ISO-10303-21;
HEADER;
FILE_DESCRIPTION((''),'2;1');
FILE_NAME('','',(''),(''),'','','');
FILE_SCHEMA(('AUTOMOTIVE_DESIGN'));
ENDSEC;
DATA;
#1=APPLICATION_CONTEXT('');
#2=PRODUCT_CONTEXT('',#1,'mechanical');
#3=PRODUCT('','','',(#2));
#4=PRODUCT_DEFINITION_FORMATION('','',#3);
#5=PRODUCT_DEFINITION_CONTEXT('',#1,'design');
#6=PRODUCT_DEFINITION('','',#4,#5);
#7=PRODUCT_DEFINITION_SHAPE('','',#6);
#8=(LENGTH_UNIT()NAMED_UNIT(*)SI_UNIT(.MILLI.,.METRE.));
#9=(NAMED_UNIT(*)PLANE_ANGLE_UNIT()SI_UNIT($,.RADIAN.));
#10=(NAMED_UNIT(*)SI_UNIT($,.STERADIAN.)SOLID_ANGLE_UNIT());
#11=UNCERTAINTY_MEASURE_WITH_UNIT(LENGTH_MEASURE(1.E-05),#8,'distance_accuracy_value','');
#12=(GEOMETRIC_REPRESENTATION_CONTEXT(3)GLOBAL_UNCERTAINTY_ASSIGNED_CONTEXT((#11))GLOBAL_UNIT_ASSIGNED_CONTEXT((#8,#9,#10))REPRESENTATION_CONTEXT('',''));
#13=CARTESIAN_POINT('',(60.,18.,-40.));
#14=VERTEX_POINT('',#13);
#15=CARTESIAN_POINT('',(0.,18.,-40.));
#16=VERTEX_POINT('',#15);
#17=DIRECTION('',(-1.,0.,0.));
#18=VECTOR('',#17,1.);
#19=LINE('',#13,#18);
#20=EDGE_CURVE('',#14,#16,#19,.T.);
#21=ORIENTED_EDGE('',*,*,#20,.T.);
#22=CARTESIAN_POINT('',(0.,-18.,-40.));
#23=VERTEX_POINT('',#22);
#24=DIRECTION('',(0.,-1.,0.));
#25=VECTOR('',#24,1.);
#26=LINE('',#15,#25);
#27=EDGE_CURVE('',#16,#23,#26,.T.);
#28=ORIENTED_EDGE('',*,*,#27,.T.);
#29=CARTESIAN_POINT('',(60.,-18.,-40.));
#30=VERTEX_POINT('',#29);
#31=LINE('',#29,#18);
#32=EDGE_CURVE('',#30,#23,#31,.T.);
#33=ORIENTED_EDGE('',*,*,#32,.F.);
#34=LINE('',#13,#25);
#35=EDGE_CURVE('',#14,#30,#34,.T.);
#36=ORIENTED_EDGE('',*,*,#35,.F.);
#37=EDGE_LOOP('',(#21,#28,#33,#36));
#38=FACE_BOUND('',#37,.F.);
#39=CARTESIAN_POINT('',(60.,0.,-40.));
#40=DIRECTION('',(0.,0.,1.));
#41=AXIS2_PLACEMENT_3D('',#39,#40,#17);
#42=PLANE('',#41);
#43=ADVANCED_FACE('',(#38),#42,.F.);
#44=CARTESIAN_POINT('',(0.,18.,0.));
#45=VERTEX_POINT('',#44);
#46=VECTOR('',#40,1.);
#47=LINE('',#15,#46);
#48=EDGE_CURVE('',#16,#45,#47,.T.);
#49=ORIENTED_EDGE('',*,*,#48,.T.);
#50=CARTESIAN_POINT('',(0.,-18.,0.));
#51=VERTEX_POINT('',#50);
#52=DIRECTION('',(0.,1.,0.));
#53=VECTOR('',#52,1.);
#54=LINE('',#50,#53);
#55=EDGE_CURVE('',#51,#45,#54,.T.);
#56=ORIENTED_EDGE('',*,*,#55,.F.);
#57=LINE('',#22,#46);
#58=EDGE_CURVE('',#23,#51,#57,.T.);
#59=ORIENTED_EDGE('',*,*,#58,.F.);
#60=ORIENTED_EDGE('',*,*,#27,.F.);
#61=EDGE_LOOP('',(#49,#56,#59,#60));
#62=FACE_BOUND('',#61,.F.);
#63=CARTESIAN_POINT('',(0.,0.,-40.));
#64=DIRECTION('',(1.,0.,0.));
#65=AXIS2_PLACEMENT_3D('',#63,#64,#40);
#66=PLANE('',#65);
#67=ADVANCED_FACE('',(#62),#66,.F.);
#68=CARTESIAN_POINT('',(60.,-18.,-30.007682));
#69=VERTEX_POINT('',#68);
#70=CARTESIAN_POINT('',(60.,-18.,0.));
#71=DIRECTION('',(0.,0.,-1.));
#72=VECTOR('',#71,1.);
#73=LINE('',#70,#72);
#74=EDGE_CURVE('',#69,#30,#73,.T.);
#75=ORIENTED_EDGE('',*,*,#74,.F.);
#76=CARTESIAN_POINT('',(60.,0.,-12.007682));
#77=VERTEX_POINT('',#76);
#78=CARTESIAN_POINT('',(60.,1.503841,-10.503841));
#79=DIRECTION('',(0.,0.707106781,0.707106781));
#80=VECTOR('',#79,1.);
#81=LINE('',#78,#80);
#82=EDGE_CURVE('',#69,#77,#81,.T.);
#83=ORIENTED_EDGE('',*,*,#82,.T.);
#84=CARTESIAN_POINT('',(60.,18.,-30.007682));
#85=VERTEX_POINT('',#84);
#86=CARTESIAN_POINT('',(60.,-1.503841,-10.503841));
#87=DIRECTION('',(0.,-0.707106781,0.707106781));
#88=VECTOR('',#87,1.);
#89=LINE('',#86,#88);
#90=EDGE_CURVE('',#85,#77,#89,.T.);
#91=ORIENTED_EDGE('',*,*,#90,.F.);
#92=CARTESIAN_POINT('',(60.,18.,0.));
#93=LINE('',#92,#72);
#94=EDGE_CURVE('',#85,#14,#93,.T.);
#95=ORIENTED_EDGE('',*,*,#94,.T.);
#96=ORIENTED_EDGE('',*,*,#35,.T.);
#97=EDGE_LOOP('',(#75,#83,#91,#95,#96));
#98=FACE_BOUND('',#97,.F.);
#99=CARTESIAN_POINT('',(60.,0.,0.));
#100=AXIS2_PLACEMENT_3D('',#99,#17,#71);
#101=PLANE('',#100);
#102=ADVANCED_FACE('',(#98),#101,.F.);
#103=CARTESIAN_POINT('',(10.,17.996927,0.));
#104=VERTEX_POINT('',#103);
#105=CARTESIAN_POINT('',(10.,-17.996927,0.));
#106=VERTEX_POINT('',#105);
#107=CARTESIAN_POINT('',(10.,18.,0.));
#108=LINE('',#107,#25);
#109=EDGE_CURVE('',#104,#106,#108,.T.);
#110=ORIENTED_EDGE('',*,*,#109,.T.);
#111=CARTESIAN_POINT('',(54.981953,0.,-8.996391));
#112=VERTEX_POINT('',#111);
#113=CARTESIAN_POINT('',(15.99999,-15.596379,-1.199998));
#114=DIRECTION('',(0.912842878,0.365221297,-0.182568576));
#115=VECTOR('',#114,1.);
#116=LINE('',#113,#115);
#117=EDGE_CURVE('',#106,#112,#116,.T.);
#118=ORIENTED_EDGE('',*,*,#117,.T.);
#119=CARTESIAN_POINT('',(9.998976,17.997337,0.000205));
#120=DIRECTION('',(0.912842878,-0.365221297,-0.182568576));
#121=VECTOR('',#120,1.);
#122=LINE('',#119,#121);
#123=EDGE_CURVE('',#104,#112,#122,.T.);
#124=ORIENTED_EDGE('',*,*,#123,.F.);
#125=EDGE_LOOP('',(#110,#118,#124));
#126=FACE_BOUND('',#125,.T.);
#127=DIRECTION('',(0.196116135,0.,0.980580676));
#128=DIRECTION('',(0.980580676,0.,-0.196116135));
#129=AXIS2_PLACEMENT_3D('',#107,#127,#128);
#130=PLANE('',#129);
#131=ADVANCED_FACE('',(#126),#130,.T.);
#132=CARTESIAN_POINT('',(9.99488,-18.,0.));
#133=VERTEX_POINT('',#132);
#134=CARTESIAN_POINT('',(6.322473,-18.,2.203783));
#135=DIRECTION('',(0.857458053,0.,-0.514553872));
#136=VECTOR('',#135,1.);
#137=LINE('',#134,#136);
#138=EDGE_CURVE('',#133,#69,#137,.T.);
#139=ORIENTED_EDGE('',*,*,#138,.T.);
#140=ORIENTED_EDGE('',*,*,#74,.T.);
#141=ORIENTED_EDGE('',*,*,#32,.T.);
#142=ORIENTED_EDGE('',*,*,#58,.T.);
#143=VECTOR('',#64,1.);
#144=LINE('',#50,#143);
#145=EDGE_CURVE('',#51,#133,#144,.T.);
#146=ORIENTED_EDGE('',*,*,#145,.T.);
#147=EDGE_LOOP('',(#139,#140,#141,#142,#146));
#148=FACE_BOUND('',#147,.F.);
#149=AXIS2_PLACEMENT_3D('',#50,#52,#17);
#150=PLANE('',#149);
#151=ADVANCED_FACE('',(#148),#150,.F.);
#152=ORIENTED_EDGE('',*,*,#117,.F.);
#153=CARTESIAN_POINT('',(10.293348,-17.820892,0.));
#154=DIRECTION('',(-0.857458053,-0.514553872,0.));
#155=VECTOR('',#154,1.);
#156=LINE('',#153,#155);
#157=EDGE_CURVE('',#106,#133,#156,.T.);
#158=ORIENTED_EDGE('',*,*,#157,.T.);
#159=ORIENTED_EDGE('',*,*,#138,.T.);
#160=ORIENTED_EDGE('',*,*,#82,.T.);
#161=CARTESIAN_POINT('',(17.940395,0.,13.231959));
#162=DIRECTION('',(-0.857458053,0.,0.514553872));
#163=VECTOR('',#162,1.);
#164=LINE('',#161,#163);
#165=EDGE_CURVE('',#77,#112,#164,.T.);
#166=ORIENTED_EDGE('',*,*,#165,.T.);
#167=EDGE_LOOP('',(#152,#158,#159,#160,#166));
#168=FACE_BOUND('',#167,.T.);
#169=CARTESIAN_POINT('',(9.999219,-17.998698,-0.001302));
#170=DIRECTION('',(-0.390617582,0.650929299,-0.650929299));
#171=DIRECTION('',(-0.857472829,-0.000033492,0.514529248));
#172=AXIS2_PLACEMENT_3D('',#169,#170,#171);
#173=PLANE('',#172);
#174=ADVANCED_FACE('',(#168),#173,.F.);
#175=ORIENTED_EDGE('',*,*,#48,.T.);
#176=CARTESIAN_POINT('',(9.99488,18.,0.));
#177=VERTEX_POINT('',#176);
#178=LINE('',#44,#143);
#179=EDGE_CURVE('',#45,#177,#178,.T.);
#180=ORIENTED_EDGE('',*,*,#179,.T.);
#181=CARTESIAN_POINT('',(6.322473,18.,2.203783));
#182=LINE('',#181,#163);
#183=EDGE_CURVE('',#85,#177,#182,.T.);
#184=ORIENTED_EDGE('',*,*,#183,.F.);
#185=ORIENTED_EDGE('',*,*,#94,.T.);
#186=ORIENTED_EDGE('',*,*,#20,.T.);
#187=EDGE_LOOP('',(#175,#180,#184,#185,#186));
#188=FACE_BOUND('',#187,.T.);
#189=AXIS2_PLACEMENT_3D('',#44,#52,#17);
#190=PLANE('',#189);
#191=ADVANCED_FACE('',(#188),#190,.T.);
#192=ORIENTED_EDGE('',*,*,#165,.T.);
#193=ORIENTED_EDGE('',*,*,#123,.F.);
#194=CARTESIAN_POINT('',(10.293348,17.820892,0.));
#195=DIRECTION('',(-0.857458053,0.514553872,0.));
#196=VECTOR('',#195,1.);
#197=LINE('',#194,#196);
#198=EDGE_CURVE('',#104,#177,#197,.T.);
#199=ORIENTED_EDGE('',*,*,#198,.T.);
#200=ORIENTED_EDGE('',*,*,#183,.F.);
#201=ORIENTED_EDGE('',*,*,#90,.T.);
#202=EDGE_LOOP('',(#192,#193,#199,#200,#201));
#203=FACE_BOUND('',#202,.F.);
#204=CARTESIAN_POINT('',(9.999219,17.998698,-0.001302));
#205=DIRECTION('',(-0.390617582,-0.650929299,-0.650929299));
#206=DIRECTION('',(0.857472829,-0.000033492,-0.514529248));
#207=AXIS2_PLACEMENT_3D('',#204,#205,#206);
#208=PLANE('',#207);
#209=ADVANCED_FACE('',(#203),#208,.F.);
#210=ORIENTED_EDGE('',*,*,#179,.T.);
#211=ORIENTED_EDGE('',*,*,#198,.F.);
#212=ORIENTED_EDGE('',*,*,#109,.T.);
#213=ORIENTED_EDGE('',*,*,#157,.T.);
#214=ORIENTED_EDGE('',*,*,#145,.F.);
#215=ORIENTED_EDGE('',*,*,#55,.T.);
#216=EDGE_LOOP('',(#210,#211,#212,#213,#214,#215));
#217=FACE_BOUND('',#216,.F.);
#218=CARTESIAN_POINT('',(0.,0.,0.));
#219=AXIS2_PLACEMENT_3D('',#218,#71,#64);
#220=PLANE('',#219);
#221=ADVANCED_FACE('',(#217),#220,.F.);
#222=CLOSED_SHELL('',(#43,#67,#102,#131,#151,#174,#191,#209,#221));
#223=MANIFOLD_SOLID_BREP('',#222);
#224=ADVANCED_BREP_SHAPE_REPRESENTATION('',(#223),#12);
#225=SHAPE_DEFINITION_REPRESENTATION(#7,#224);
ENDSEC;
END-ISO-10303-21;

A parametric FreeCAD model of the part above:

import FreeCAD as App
import Part
import Sketcher
Q = App.Units.Quantity

doc = App.newDocument("Part")
body = doc.addObject("PartDesign::Body", "Body")

# Sketch on XZ plane
sketch1 = doc.addObject("Sketcher::SketchObject", "Sketch")
body.addObject(sketch1)
sketch1.AttachmentSupport = (doc.XZ_Plane, [""])
sketch1.MapMode = "FlatFace"
sketch1.addGeometry([
    Part.LineSegment(App.Vector(0, -40, 0), App.Vector(0, 0, 0)),
    Part.LineSegment(App.Vector(0, 0, 0), App.Vector(60, 0, 0)),
    Part.LineSegment(App.Vector(60, 0, 0), App.Vector(60, -40, 0)),
    Part.LineSegment(App.Vector(60, -40, 0), App.Vector(0, -40, 0)),
], False)
sketch1.addConstraint([
    Sketcher.Constraint("Coincident", 0, 2, 1, 1),
    Sketcher.Constraint("Coincident", 1, 2, 2, 1),
    Sketcher.Constraint("Coincident", 2, 2, 3, 1),
    Sketcher.Constraint("Coincident", 3, 2, 0, 1),
    Sketcher.Constraint("Vertical", 0),
    Sketcher.Constraint("Horizontal", 1),
    Sketcher.Constraint("Vertical", 2),
    Sketcher.Constraint("Horizontal", 3),
    Sketcher.Constraint("Coincident", 0, 2, -1, 1),
    Sketcher.Constraint("DistanceX", 1, 1, 1, 2, Q("60 mm")),
    Sketcher.Constraint("DistanceY", 0, 1, 0, 2, Q("40 mm")),
])
pad1 = doc.addObject("PartDesign::Pad", "Pad")
body.addObject(pad1)
pad1.Profile = sketch1
pad1.Length = 36
pad1.Midplane = True

# Sketch on XZ plane
sketch2 = doc.addObject("Sketcher::SketchObject", "Sketch001")
body.addObject(sketch2)
sketch2.AttachmentSupport = (doc.XZ_Plane, [""])
sketch2.MapMode = "FlatFace"
sketch2.AttachmentOffset = App.Placement(App.Vector(0, 0, -18), App.Rotation())
sketch2.addGeometry([
    Part.LineSegment(App.Vector(60, -10, 0), App.Vector(10, 0, 0)),
    Part.LineSegment(App.Vector(10, 0, 0), App.Vector(60, 0, 0)),
    Part.LineSegment(App.Vector(60, 0, 0), App.Vector(60, -10, 0)),
], False)
sketch2.addConstraint([
    Sketcher.Constraint("Coincident", 0, 2, 1, 1),
    Sketcher.Constraint("Coincident", 1, 2, 2, 1),
    Sketcher.Constraint("Coincident", 2, 2, 0, 1),
    Sketcher.Constraint("Horizontal", 1),
    Sketcher.Constraint("Vertical", 2),
    Sketcher.Constraint("PointOnObject", 0, 2, -1),
    Sketcher.Constraint("DistanceY", 2, 2, 2, 1, Q("10 mm")),
    Sketcher.Constraint("DistanceX", -1, 1, 0, 2, Q("10 mm")),
    Sketcher.Constraint("DistanceX", 1, 1, 1, 2, Q("50 mm")),
])
pocket1 = doc.addObject("PartDesign::Pocket", "Pocket")
body.addObject(pocket1)
pocket1.Profile = sketch2
pocket1.Length = 40
pocket1.Reversed = True

# Sketch on an angled plane
sketch3 = doc.addObject("Sketcher::SketchObject", "Sketch002")
body.addObject(sketch3)
sketch3.Placement = App.Placement(App.Vector(10, 18, 0), App.Rotation(App.Vector(0.857472829, -0.000033492, -0.514529248), App.Vector(0.334900362, -0.759138358, 0.55816727), App.Vector(-0.390617582, -0.650929299, -0.650929299), "ZXY"))
sketch3.addGeometry([
    Part.LineSegment(App.Vector(-15, 29, 0), App.Vector(-15, -12, 0)),
    Part.LineSegment(App.Vector(-15, -12, 0), App.Vector(94, -12, 0)),
    Part.LineSegment(App.Vector(94, -12, 0), App.Vector(94, 29, 0)),
    Part.LineSegment(App.Vector(94, 29, 0), App.Vector(-15, 29, 0)),
], False)
sketch3.addConstraint([
    Sketcher.Constraint("Coincident", 0, 2, 1, 1),
    Sketcher.Constraint("Coincident", 1, 2, 2, 1),
    Sketcher.Constraint("Coincident", 2, 2, 3, 1),
    Sketcher.Constraint("Coincident", 3, 2, 0, 1),
    Sketcher.Constraint("Vertical", 0),
    Sketcher.Constraint("Horizontal", 1),
    Sketcher.Constraint("Vertical", 2),
    Sketcher.Constraint("Horizontal", 3),
    Sketcher.Constraint("DistanceX", 1, 1, 1, 2, Q("108.8713 mm")),
    Sketcher.Constraint("DistanceY", 0, 2, 0, 1, Q("41.1384 mm")),
    Sketcher.Constraint("DistanceX", -1, 1, 1, 2, Q("93.717 mm")),
    Sketcher.Constraint("DistanceY", 0, 2, -1, 1, Q("12.3218 mm")),
])
pocket2 = doc.addObject("PartDesign::Pocket", "Pocket001")
body.addObject(pocket2)
pocket2.Profile = sketch3
pocket2.Length = 40
doc.recompute()

mirrored = doc.addObject("PartDesign::Mirrored", "Mirrored")
body.addObject(mirrored)
mirrored.Originals = [pocket2]
mirrored.MirrorPlane = (doc.XZ_Plane, [""])
body.Tip = mirrored

doc.recompute()
